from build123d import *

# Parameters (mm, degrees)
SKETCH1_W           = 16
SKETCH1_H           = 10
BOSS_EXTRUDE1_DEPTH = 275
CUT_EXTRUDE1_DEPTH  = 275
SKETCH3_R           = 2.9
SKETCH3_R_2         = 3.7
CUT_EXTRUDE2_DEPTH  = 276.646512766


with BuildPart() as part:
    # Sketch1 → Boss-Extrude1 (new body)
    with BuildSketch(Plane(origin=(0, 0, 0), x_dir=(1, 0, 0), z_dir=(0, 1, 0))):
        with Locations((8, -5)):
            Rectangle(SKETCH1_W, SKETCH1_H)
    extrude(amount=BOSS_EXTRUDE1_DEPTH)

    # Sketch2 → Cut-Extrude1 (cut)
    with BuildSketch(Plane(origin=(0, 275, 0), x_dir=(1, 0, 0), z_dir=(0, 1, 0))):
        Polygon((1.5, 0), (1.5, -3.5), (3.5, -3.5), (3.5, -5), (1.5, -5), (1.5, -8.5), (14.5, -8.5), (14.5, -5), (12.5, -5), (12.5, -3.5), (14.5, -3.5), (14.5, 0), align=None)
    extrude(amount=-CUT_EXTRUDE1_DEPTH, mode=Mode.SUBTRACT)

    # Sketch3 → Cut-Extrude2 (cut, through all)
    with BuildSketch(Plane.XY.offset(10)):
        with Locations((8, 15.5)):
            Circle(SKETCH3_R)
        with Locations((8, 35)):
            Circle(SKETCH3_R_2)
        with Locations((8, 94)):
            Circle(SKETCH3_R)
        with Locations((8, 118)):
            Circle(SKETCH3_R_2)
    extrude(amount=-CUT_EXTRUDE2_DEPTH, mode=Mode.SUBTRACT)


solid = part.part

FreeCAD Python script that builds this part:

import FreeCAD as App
import Part
import Sketcher
from FreeCAD import Vector
Q = App.Units.Quantity

doc = App.newDocument("Part")
params = doc.addObject("Spreadsheet::Sheet", "Params")
for row, (alias, value) in enumerate([
    ("sketch1_width", "16 mm"),
    ("sketch1_height", "10 mm"),
    ("pad1_length", "275 mm"),
    ("sketch2_width", "2 mm"),
    ("sketch2_width2", "13 mm"),
    ("sketch2_height", "3.5 mm"),
    ("sketch2_height2", "1.5 mm"),
    ("pocket1_length", "275 mm"),
    ("sketch3_diameter", "5.8 mm"),
    ("sketch3_diameter2", "7.4 mm"),
], start=1):
    params.set(f"A{row}", alias)
    params.set(f"B{row}", "=" + value)
    params.setAlias(f"B{row}", alias)

body = doc.addObject("PartDesign::Body", "Body")

# Sketch on XZ plane
sketch1 = doc.addObject("Sketcher::SketchObject", "Sketch")
body.addObject(sketch1)
sketch1.AttachmentSupport = (doc.XZ_Plane, [""])
sketch1.MapMode = "FlatFace"
sketch1.addGeometry(Part.LineSegment(Vector(0, 0, 0), Vector(0, 10, 0)), False)
sketch1.addGeometry(Part.LineSegment(Vector(0, 10, 0), Vector(16, 10, 0)), False)
sketch1.addGeometry(Part.LineSegment(Vector(16, 10, 0), Vector(16, 0, 0)), False)
sketch1.addGeometry(Part.LineSegment(Vector(16, 0, 0), Vector(0, 0, 0)), False)
sketch1.addConstraint(Sketcher.Constraint("Coincident", 0, 2, 1, 1))
sketch1.addConstraint(Sketcher.Constraint("Coincident", 1, 2, 2, 1))
sketch1.addConstraint(Sketcher.Constraint("Coincident", 2, 2, 3, 1))
sketch1.addConstraint(Sketcher.Constraint("Coincident", 3, 2, 0, 1))
sketch1.addConstraint(Sketcher.Constraint("Vertical", 0))
sketch1.addConstraint(Sketcher.Constraint("Horizontal", 1))
sketch1.addConstraint(Sketcher.Constraint("Vertical", 2))
sketch1.addConstraint(Sketcher.Constraint("Horizontal", 3))
sketch1.addConstraint(Sketcher.Constraint("Coincident", 3, 2, -1, 1))
sketch1.addConstraint(Sketcher.Constraint("DistanceX", 1, 1, 1, 2, Q("16 mm")))
sketch1.addConstraint(Sketcher.Constraint("DistanceY", 0, 1, 0, 2, Q("10 mm")))
sketch1.setExpression("Constraints[9]", "Params.sketch1_width")
sketch1.setExpression("Constraints[10]", "Params.sketch1_height")
pad1 = doc.addObject("PartDesign::Pad", "Pad")
body.addObject(pad1)
pad1.Profile = sketch1
pad1.setExpression("Length", "Params.pad1_length")
pad1.Reversed = True

# Sketch on XZ plane
sketch2 = doc.addObject("Sketcher::SketchObject", "Sketch001")
body.addObject(sketch2)
sketch2.AttachmentSupport = (doc.XZ_Plane, [""])
sketch2.MapMode = "FlatFace"
sketch2.AttachmentOffset = App.Placement(Vector(0, 0, -275), App.Rotation())
sketch2.addGeometry(Part.LineSegment(Vector(1.5, 0, 0), Vector(1.5, 3.5, 0)), False)
sketch2.addGeometry(Part.LineSegment(Vector(1.5, 3.5, 0), Vector(3.5, 3.5, 0)), False)
sketch2.addGeometry(Part.LineSegment(Vector(3.5, 3.5, 0), Vector(3.5, 5, 0)), False)
sketch2.addGeometry(Part.LineSegment(Vector(3.5, 5, 0), Vector(1.5, 5, 0)), False)
sketch2.addGeometry(Part.LineSegment(Vector(1.5, 5, 0), Vector(1.5, 8.5, 0)), False)
sketch2.addGeometry(Part.LineSegment(Vector(1.5, 8.5, 0), Vector(14.5, 8.5, 0)), False)
sketch2.addGeometry(Part.LineSegment(Vector(14.5, 8.5, 0), Vector(14.5, 5, 0)), False)
sketch2.addGeometry(Part.LineSegment(Vector(14.5, 5, 0), Vector(12.5, 5, 0)), False)
sketch2.addGeometry(Part.LineSegment(Vector(12.5, 5, 0), Vector(12.5, 3.5, 0)), False)
sketch2.addGeometry(Part.LineSegment(Vector(12.5, 3.5, 0), Vector(14.5, 3.5, 0)), False)
sketch2.addGeometry(Part.LineSegment(Vector(14.5, 3.5, 0), Vector(14.5, 0, 0)), False)
sketch2.addGeometry(Part.LineSegment(Vector(14.5, 0, 0), Vector(1.5, 0, 0)), False)
sketch2.addConstraint(Sketcher.Constraint("Coincident", 0, 2, 1, 1))
sketch2.addConstraint(Sketcher.Constraint("Coincident", 1, 2, 2, 1))
sketch2.addConstraint(Sketcher.Constraint("Coincident", 2, 2, 3, 1))
sketch2.addConstraint(Sketcher.Constraint("Coincident", 3, 2, 4, 1))
sketch2.addConstraint(Sketcher.Constraint("Coincident", 4, 2, 5, 1))
sketch2.addConstraint(Sketcher.Constraint("Coincident", 5, 2, 6, 1))
sketch2.addConstraint(Sketcher.Constraint("Coincident", 6, 2, 7, 1))
sketch2.addConstraint(Sketcher.Constraint("Coincident", 7, 2, 8, 1))
sketch2.addConstraint(Sketcher.Constraint("Coincident", 8, 2, 9, 1))
sketch2.addConstraint(Sketcher.Constraint("Coincident", 9, 2, 10, 1))
sketch2.addConstraint(Sketcher.Constraint("Coincident", 10, 2, 11, 1))
sketch2.addConstraint(Sketcher.Constraint("Coincident", 11, 2, 0, 1))
sketch2.addConstraint(Sketcher.Constraint("Vertical", 0))
sketch2.addConstraint(Sketcher.Constraint("Horizontal", 1))
sketch2.addConstraint(Sketcher.Constraint("Vertical", 2))
sketch2.addConstraint(Sketcher.Constraint("Horizontal", 3))
sketch2.addConstraint(Sketcher.Constraint("Vertical", 4))
sketch2.addConstraint(Sketcher.Constraint("Horizontal", 5))
sketch2.addConstraint(Sketcher.Constraint("Vertical", 6))
sketch2.addConstraint(Sketcher.Constraint("Horizontal", 7))
sketch2.addConstraint(Sketcher.Constraint("Vertical", 8))
sketch2.addConstraint(Sketcher.Constraint("Horizontal", 9))
sketch2.addConstraint(Sketcher.Constraint("Vertical", 10))
sketch2.addConstraint(Sketcher.Constraint("Horizontal", 11))
sketch2.addConstraint(Sketcher.Constraint("PointOnObject", 10, 2, -1))
sketch2.addConstraint(Sketcher.Constraint("Horizontal", 3, 2, 6, 2))
sketch2.addConstraint(Sketcher.Constraint("Horizontal", 1, 2, 8, 2))
sketch2.addConstraint(Sketcher.Constraint("Vertical", 0, 2, 3, 2))
sketch2.addConstraint(Sketcher.Constraint("Vertical", 6, 2, 9, 2))
sketch2.addConstraint(Sketcher.Constraint("Equal", 3, 7))
sketch2.addConstraint(Sketcher.Constraint("Equal", 0, 4))
sketch2.addConstraint(Sketcher.Constraint("DistanceX", 1, 1, 1, 2, Q("2 mm")))
sketch2.addConstraint(Sketcher.Constraint("DistanceX", 5, 1, 5, 2, Q("13 mm")))
sketch2.addConstraint(Sketcher.Constraint("DistanceY", 0, 1, 0, 2, Q("3.5 mm")))
sketch2.addConstraint(Sketcher.Constraint("DistanceY", 2, 1, 2, 2, Q("1.5 mm")))
sketch2.addConstraint(Sketcher.Constraint("DistanceX", -1, 1, 0, 2, Q("1.5 mm")))
sketch2.setExpression("Constraints[31]", "Params.sketch2_width")
sketch2.setExpression("Constraints[32]", "Params.sketch2_width2")
sketch2.setExpression("Constraints[33]", "Params.sketch2_height")
sketch2.setExpression("Constraints[34]", "Params.sketch2_height2")
pocket1 = doc.addObject("PartDesign::Pocket", "Pocket")
body.addObject(pocket1)
pocket1.Profile = sketch2
pocket1.setExpression("Length", "Params.pocket1_length")
pocket1.Reversed = True

# Sketch on XY plane
sketch3 = doc.addObject("Sketcher::SketchObject", "Sketch002")
body.addObject(sketch3)
sketch3.AttachmentSupport = (doc.XY_Plane, [""])
sketch3.MapMode = "FlatFace"
sketch3.AttachmentOffset = App.Placement(Vector(0, 0, 10), App.Rotation())
sketch3.addGeometry(Part.Circle(Vector(8, 15.5, 0), Vector(0, 0, 1), 2.9), False)
sketch3.addGeometry(Part.Circle(Vector(8, 35, 0), Vector(0, 0, 1), 3.7), False)
sketch3.addGeometry(Part.Circle(Vector(8, 94, 0), Vector(0, 0, 1), 2.9), False)
sketch3.addGeometry(Part.Circle(Vector(8, 118, 0), Vector(0, 0, 1), 3.7), False)
sketch3.addConstraint(Sketcher.Constraint("Equal", 0, 2))
sketch3.addConstraint(Sketcher.Constraint("Equal", 1, 3))
sketch3.addConstraint(Sketcher.Constraint("Vertical", 0, 3, 1, 3))
sketch3.addConstraint(Sketcher.Constraint("Vertical", 1, 3, 2, 3))
sketch3.addConstraint(Sketcher.Constraint("Vertical", 2, 3, 3, 3))
sketch3.addConstraint(Sketcher.Constraint("Diameter", 0, Q("5.8 mm")))
sketch3.addConstraint(Sketcher.Constraint("Diameter", 1, Q("7.4 mm")))
sketch3.addConstraint(Sketcher.Constraint("DistanceX", -1, 1, 0, 3, Q("8 mm")))
sketch3.addConstraint(Sketcher.Constraint("DistanceY", -1, 1, 1, 3, Q("35 mm")))
sketch3.addConstraint(Sketcher.Constraint("DistanceY", -1, 1, 2, 3, Q("94 mm")))
sketch3.addConstraint(Sketcher.Constraint("DistanceY", -1, 1, 3, 3, Q("118 mm")))
sketch3.addConstraint(Sketcher.Constraint("DistanceY", -1, 1, 0, 3, Q("15.5 mm")))
sketch3.setExpression("Constraints[5]", "Params.sketch3_diameter")
sketch3.setExpression("Constraints[6]", "Params.sketch3_diameter2")
pocket2 = doc.addObject("PartDesign::Pocket", "Pocket001")
body.addObject(pocket2)
pocket2.Profile = sketch3
pocket2.Type = "ThroughAll"

doc.recompute()
